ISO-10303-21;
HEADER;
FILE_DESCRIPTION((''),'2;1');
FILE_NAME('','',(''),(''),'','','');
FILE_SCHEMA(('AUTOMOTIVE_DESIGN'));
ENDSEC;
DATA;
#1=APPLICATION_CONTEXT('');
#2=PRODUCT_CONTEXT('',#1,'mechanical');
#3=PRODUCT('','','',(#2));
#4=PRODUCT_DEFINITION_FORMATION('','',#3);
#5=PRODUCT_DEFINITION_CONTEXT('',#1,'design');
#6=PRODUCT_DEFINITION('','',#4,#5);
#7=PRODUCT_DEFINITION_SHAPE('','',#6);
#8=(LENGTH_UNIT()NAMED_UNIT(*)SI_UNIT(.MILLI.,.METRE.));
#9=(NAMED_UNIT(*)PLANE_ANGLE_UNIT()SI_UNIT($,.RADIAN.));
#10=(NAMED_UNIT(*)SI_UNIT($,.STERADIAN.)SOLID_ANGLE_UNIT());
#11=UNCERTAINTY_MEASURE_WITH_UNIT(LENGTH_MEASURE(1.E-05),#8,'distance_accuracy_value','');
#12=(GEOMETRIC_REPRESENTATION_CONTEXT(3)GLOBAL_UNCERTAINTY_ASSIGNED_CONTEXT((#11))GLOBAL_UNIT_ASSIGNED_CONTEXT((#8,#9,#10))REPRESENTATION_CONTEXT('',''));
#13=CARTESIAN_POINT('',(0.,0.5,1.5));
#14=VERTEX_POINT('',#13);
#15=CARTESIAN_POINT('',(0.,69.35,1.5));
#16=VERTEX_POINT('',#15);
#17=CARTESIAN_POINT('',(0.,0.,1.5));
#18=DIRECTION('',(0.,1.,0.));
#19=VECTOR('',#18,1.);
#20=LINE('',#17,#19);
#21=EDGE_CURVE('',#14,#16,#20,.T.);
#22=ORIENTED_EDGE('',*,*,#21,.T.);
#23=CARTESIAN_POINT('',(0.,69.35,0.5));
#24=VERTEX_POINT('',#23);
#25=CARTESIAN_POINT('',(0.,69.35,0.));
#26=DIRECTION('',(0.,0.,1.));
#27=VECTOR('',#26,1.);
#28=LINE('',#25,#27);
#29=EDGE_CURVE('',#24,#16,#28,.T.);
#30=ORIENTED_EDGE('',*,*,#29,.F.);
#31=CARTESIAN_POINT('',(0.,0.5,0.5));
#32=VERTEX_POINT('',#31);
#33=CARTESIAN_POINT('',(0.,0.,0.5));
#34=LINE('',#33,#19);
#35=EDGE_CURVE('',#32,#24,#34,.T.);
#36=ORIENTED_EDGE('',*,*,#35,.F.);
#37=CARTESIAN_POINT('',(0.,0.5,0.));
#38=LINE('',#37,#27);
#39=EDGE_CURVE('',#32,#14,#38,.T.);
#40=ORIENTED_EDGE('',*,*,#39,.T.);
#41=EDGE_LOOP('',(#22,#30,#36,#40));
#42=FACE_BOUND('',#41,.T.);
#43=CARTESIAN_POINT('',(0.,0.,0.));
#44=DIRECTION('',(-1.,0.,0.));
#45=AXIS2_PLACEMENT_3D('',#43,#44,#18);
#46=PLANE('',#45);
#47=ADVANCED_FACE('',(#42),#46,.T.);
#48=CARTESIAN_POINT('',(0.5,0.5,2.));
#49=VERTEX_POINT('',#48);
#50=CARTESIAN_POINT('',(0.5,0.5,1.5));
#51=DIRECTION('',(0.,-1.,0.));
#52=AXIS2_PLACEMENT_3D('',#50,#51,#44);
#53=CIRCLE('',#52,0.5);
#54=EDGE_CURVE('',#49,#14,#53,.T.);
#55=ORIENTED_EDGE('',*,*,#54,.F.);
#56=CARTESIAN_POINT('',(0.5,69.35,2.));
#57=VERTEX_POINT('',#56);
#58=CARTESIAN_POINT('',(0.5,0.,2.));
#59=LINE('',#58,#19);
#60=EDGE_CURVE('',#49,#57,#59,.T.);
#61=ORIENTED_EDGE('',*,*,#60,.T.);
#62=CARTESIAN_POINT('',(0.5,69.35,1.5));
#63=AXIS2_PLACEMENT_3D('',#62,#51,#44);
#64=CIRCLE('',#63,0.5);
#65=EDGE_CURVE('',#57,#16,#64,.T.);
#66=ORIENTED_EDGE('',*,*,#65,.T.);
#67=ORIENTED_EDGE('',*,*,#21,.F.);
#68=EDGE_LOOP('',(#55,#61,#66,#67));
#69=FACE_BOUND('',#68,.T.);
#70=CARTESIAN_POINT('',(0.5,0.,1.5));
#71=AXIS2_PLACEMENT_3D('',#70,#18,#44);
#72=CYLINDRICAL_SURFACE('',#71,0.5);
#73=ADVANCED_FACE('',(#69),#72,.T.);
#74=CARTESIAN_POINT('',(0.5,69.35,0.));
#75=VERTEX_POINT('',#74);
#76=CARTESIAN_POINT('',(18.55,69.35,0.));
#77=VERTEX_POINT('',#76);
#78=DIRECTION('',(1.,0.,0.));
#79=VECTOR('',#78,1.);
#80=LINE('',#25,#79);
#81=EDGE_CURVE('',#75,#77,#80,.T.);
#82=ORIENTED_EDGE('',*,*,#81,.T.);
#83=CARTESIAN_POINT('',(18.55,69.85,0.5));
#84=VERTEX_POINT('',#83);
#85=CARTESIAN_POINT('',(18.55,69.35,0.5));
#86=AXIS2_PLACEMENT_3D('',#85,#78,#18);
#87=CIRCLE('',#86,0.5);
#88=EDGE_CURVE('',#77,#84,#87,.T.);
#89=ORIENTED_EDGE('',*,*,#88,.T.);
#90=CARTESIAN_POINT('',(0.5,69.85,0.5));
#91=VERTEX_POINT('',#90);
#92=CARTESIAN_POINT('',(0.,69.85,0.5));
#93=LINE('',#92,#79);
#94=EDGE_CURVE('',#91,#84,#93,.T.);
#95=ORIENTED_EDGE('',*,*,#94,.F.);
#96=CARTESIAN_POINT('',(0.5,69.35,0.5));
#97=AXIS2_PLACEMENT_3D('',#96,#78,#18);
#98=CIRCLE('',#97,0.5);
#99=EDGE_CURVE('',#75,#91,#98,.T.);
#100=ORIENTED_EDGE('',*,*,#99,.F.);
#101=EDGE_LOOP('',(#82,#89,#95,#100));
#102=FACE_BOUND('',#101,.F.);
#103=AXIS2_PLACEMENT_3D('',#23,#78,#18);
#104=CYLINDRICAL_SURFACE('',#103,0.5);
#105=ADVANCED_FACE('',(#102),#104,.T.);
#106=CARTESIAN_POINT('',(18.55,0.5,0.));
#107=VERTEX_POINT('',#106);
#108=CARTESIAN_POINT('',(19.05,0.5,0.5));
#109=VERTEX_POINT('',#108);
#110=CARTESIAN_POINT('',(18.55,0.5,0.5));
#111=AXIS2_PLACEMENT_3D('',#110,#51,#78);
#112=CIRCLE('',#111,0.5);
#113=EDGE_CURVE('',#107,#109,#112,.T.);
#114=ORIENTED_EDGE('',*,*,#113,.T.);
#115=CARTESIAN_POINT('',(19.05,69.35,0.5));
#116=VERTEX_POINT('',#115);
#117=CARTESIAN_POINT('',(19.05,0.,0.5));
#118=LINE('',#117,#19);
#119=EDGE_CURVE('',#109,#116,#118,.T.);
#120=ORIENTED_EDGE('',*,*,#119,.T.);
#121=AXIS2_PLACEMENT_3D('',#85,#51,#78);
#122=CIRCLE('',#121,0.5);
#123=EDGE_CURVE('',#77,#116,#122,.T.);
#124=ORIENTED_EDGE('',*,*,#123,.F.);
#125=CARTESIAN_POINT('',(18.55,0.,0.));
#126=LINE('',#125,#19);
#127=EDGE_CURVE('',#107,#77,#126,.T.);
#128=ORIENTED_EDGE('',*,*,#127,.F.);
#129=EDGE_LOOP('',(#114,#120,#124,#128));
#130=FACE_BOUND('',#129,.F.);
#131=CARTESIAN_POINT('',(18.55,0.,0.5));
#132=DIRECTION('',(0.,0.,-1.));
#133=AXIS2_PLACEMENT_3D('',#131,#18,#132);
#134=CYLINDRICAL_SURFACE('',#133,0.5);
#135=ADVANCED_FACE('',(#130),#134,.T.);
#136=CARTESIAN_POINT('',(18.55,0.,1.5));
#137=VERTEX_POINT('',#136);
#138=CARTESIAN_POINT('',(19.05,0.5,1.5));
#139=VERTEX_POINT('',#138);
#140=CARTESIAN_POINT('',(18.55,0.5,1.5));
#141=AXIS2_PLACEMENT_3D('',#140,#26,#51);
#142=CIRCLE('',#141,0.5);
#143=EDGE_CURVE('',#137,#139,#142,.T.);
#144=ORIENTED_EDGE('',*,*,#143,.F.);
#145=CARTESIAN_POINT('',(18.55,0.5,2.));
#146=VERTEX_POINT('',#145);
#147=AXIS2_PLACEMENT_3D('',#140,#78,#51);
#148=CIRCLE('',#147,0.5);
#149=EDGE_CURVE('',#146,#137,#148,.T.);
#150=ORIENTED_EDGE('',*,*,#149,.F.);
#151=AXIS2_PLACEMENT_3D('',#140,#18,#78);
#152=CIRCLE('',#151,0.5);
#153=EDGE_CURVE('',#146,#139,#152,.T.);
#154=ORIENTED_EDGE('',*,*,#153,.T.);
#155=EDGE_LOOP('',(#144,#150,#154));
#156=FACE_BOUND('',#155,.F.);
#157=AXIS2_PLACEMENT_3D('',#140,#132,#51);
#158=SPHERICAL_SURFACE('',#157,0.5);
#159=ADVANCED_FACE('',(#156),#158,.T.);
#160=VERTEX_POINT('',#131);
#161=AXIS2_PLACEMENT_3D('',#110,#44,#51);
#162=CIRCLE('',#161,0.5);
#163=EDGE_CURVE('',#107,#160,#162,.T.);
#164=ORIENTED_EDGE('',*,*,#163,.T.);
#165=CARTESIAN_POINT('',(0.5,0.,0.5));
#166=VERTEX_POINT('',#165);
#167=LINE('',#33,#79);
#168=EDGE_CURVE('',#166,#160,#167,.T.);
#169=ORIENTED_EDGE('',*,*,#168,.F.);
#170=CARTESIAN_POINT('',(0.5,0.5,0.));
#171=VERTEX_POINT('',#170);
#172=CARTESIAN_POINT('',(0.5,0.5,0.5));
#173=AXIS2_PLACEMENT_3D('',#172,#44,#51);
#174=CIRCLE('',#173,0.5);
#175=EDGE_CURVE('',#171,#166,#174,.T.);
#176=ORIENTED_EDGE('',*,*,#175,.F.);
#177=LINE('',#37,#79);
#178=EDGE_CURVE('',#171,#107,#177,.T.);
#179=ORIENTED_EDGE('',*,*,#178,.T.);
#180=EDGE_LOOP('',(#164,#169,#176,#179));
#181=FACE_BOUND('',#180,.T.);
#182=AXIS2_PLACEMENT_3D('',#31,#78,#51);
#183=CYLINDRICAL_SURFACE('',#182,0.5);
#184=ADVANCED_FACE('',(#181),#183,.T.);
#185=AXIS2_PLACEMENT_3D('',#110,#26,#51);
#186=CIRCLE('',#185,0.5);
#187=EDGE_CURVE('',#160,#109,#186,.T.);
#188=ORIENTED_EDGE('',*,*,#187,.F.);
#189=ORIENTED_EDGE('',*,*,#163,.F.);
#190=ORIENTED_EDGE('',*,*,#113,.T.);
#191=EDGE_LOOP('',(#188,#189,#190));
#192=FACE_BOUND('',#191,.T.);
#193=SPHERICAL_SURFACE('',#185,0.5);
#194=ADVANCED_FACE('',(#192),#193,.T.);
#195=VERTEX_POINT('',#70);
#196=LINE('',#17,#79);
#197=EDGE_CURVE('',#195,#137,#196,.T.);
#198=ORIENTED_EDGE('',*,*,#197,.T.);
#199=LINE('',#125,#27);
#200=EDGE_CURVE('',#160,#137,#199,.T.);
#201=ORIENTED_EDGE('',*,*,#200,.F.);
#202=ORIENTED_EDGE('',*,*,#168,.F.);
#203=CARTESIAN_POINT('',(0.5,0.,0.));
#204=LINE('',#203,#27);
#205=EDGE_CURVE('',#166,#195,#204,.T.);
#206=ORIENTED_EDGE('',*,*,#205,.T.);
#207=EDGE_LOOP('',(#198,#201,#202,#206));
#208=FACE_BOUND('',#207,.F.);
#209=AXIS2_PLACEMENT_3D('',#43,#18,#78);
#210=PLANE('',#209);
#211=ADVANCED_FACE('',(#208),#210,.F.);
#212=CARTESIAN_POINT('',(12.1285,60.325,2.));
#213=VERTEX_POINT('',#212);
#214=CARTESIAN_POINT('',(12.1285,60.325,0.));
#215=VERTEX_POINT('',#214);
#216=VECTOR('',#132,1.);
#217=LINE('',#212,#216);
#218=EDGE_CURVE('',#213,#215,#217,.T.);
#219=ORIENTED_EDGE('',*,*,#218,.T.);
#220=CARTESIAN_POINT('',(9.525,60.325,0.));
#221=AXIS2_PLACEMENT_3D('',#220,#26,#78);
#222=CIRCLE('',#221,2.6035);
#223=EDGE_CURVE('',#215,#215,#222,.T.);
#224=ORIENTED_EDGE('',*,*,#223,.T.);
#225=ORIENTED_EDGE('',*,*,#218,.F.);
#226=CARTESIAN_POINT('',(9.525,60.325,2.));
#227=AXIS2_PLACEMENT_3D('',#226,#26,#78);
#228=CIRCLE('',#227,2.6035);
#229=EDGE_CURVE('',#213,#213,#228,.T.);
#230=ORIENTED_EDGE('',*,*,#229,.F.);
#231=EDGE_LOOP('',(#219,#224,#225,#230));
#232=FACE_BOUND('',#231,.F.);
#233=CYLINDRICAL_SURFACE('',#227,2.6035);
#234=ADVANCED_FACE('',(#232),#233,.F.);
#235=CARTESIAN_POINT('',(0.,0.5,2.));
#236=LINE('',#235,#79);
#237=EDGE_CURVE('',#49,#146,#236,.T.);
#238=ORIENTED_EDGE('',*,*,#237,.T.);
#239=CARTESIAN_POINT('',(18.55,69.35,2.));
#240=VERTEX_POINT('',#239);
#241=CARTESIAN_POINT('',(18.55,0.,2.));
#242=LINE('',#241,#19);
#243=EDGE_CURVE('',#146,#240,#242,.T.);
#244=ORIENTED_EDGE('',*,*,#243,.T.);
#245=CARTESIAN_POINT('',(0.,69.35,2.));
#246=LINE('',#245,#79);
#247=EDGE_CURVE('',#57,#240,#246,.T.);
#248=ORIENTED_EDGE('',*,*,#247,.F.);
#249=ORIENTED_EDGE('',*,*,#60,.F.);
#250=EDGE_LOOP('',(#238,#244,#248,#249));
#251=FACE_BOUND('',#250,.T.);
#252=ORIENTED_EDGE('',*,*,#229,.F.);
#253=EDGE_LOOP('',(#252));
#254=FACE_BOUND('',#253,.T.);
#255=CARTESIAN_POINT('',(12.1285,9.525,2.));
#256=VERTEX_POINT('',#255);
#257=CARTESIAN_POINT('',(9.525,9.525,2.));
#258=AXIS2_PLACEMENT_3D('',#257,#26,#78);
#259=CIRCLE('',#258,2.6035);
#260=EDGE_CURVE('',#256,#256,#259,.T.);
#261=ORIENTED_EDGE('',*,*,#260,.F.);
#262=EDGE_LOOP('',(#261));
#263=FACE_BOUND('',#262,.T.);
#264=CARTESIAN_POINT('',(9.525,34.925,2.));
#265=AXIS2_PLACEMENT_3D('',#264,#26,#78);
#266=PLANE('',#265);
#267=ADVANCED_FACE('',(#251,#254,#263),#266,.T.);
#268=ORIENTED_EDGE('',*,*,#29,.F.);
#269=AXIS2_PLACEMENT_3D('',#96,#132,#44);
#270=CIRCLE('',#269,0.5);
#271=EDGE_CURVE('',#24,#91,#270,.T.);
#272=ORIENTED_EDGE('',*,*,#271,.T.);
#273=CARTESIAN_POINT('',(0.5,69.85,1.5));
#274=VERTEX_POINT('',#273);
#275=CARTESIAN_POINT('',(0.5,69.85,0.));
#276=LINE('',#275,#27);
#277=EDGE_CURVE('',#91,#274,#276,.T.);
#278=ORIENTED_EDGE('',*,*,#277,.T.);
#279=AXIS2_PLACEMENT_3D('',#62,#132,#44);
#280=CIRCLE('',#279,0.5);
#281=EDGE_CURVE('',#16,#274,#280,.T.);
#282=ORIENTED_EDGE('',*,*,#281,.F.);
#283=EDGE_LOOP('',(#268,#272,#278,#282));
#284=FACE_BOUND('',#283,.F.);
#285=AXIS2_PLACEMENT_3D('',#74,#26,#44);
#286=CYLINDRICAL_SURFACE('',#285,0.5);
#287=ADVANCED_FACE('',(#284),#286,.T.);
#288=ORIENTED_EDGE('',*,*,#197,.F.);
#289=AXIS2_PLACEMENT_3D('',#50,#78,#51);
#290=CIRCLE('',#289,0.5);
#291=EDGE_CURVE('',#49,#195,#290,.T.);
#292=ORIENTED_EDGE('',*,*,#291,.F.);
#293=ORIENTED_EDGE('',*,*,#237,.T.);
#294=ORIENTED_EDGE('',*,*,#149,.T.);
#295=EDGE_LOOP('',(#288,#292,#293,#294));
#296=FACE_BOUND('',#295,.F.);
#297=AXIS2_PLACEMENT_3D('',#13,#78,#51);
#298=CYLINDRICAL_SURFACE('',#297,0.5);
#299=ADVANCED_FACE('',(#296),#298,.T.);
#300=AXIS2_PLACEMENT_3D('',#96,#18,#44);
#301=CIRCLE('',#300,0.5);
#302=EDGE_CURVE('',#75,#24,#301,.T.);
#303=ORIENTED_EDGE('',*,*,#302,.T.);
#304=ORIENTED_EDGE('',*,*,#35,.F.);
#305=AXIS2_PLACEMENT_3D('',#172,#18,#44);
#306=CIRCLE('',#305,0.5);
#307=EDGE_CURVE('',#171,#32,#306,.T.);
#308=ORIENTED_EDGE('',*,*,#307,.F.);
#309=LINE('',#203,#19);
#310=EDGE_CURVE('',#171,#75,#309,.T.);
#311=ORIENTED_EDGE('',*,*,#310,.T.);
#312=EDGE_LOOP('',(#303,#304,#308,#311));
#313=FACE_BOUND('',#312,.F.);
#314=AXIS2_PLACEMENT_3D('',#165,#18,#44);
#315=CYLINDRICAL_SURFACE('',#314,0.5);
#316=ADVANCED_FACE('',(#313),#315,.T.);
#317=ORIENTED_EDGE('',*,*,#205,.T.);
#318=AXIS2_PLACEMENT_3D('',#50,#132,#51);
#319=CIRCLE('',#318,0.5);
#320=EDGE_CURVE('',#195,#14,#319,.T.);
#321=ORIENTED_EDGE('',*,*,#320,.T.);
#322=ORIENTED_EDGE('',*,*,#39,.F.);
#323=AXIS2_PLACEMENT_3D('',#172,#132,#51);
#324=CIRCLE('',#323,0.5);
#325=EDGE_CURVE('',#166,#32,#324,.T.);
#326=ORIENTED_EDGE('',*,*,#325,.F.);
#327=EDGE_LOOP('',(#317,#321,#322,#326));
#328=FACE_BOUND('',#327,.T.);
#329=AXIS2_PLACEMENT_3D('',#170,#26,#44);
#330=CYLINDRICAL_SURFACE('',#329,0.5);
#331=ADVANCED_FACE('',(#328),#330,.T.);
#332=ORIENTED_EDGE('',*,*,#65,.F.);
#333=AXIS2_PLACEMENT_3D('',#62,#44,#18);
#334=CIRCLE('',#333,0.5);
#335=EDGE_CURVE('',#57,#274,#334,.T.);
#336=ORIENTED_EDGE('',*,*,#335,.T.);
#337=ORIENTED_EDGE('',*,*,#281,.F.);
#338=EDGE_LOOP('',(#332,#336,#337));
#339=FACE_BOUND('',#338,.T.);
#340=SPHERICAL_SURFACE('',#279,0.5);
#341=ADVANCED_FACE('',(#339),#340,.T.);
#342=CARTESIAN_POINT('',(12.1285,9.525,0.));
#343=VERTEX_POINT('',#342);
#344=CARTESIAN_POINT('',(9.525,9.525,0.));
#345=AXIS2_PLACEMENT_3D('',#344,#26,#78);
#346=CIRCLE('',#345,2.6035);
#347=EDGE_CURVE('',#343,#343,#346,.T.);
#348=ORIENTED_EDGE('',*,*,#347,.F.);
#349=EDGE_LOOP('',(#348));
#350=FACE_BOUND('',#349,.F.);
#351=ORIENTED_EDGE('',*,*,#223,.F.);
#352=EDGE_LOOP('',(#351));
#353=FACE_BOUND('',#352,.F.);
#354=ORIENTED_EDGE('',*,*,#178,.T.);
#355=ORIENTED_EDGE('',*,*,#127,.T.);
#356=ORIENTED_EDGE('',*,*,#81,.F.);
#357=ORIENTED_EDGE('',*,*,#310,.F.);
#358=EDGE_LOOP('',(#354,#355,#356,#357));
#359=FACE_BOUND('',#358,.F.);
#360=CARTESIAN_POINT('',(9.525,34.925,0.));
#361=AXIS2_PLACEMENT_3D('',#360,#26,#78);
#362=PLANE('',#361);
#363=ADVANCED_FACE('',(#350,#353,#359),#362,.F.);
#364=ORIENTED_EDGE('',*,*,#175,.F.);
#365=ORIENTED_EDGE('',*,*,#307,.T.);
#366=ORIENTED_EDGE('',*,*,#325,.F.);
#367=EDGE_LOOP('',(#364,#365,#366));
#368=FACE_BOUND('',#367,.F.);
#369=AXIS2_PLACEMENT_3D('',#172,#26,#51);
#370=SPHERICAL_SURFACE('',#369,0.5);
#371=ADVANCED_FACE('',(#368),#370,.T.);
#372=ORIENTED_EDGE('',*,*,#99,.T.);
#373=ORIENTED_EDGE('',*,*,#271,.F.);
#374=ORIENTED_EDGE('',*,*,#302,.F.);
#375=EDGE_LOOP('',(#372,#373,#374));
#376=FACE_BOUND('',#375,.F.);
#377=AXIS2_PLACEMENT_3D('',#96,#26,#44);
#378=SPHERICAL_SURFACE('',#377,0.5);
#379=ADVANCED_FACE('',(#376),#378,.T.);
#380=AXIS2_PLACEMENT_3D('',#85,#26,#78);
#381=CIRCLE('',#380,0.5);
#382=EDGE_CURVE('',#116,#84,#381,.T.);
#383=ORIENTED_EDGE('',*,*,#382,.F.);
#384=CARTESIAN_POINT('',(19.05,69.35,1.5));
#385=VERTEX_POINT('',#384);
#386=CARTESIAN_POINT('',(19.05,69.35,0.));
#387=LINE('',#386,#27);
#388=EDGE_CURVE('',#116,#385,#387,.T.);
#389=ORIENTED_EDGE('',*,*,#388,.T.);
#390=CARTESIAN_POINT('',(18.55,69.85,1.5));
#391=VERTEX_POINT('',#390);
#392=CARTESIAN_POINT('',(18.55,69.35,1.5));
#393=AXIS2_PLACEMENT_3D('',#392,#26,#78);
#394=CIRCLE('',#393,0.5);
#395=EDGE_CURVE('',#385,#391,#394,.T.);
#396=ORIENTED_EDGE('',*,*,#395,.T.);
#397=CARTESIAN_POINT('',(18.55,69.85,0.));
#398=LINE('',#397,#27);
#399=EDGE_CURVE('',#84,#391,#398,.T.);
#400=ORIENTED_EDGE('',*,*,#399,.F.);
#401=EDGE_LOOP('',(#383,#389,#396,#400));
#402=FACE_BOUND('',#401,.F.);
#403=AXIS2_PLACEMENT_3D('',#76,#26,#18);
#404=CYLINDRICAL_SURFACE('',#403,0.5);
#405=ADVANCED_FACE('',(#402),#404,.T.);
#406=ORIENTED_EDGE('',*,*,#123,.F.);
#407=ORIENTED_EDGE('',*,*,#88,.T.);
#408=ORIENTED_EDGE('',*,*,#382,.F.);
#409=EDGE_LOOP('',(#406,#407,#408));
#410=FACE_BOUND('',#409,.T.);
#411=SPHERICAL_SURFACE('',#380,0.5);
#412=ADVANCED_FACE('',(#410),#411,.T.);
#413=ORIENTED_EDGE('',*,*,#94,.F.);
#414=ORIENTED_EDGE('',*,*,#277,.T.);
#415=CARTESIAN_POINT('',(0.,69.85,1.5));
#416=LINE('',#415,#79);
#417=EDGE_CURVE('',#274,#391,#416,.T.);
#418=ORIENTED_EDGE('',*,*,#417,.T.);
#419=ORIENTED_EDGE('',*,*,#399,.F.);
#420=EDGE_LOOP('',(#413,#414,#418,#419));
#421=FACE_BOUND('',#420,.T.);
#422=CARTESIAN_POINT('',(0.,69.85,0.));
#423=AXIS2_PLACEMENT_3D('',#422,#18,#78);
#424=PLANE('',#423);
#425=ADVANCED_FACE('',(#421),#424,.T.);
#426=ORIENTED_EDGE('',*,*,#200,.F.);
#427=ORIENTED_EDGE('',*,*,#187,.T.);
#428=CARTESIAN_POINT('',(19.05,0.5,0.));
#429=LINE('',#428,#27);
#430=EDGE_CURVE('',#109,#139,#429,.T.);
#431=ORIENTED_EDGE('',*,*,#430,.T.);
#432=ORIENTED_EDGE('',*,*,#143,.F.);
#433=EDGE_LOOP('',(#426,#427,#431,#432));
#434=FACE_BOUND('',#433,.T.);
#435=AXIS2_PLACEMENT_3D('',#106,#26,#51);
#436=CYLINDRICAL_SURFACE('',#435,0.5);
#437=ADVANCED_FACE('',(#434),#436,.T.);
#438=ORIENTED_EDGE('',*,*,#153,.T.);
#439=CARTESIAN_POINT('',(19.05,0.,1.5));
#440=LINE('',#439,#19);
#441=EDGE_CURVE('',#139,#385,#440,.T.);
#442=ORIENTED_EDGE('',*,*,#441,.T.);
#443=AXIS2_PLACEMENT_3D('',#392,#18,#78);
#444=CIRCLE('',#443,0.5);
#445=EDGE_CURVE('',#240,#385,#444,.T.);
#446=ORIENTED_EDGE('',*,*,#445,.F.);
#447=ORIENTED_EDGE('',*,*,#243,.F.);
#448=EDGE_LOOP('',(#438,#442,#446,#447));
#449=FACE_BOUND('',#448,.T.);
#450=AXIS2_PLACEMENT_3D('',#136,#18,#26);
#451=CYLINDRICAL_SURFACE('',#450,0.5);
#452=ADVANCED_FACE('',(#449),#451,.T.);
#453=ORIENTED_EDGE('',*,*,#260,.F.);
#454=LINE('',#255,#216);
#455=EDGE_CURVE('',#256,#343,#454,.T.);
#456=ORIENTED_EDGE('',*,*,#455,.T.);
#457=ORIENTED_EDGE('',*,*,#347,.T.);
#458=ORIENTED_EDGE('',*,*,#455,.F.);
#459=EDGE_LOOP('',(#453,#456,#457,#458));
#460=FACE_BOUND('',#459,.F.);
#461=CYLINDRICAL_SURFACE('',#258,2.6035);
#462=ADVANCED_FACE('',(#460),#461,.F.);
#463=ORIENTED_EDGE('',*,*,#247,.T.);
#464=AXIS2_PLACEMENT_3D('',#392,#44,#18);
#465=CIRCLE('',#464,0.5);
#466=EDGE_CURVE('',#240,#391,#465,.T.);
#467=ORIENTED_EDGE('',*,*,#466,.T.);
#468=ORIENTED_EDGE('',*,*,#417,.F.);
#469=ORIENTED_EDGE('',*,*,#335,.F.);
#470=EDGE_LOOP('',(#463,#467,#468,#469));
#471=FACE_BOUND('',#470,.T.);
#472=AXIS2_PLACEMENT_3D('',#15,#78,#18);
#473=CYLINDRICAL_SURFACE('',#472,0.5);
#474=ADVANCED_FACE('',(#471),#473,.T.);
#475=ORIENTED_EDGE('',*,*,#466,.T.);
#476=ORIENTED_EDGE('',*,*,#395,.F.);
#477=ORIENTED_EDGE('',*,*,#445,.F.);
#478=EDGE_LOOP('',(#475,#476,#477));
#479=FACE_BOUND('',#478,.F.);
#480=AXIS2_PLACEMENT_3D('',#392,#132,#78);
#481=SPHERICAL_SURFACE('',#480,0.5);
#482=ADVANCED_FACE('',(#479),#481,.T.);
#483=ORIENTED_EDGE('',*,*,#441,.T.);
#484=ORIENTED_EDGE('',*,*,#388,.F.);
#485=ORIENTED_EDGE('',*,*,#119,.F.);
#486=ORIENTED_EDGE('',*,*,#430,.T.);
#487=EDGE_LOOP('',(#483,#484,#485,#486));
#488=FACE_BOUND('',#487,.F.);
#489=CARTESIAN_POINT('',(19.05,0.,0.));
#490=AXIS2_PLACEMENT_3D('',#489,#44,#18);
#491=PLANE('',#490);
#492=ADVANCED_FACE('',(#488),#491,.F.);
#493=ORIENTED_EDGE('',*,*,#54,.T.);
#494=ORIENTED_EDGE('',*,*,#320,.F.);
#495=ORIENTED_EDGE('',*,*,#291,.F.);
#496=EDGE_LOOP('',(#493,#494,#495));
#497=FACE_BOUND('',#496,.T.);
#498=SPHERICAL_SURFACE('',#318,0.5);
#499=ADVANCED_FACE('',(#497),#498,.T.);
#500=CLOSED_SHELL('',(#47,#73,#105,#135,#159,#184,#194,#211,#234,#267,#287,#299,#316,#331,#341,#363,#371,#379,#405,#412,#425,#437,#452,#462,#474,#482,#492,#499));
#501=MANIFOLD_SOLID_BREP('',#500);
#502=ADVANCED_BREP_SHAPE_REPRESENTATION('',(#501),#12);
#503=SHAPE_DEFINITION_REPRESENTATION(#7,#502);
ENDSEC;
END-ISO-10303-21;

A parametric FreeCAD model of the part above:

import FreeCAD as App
import Part
import Sketcher

V = App.Vector
Q = App.Units.Quantity


def edges_at(feature, points):
    """Names of the edges that pass closest to the given points."""
    edges = feature.Shape.Edges
    near = lambda p: min(range(len(edges)), key=lambda i: edges[i].distToShape(Part.Vertex(*p))[0])
    return sorted({f"Edge{near(p) + 1}" for p in points})

doc = App.newDocument("Part")
body = doc.addObject("PartDesign::Body", "Body")

# Sketch on XY plane
sketch1 = body.newObject("Sketcher::SketchObject", "Sketch")
sketch1.AttachmentSupport = (doc.getObject("XY_Plane"), [""])
sketch1.MapMode = "FlatFace"
sketch1.addGeometry([
    Part.LineSegment(V(0, 69.85, 0), V(0, 0, 0)),
    Part.LineSegment(V(0, 0, 0), V(19.05, 0, 0)),
    Part.LineSegment(V(19.05, 0, 0), V(19.05, 69.85, 0)),
    Part.LineSegment(V(19.05, 69.85, 0), V(0, 69.85, 0)),
], False)
sketch1.addConstraint([
    Sketcher.Constraint("Coincident", 0, 2, 1, 1),
    Sketcher.Constraint("Coincident", 1, 2, 2, 1),
    Sketcher.Constraint("Coincident", 2, 2, 3, 1),
    Sketcher.Constraint("Coincident", 3, 2, 0, 1),
    Sketcher.Constraint("Vertical", 0),
    Sketcher.Constraint("Horizontal", 1),
    Sketcher.Constraint("Vertical", 2),
    Sketcher.Constraint("Horizontal", 3),
    Sketcher.Constraint("Coincident", 0, 2, -1, 1),
    Sketcher.Constraint("DistanceX", 1, 1, 1, 2, Q("0.75 in")),
    Sketcher.Constraint("DistanceY", 0, 2, 0, 1, Q("2.75 in")),
])
pad1 = body.newObject("PartDesign::Pad", "Pad")
pad1.Profile = sketch1
pad1.Length = 2

# Sketch on XY plane
sketch2 = body.newObject("Sketcher::SketchObject", "Sketch001")
sketch2.AttachmentSupport = (doc.getObject("XY_Plane"), [""])
sketch2.MapMode = "FlatFace"
sketch2.AttachmentOffset = App.Placement(V(0, 0, 2), App.Rotation())
sketch2.addGeometry(Part.Circle(V(9.525, 9.525, 0), V(0, 0, 1), 2.6035), False)
sketch2.addConstraint([
    Sketcher.Constraint("Diameter", 0, Q("0.205 in")),
    Sketcher.Constraint("DistanceX", -1, 1, 0, 3, Q("0.375 in")),
    Sketcher.Constraint("DistanceY", -1, 1, 0, 3, Q("0.375 in")),
])
pocket1 = body.newObject("PartDesign::Pocket", "Pocket")
pocket1.Profile = sketch2
pocket1.Type = "ThroughAll"
doc.recompute()

linearpattern = body.newObject("PartDesign::LinearPattern", "LinearPattern")
linearpattern.Originals = [pocket1]
linearpattern.Direction = (doc.getObject("Y_Axis"), [""])
linearpattern.Mode = "offset"
linearpattern.Offset = Q("2 in")
linearpattern.Occurrences = 2
body.Tip = linearpattern
doc.recompute()

fillet = body.newObject("PartDesign::Fillet", "Fillet")
fillet.Base = (linearpattern, edges_at(linearpattern, [
    (0, 0, 1),
    (19.05, 0, 1),
    (9.525, 0, 0),
    (9.525, 0, 2),
    (19.05, 69.85, 1),
    (19.05, 34.925, 0),
    (19.05, 34.925, 2),
    (0, 69.85, 1),
    (0, 34.925, 0),
    (0, 34.925, 2),
    (9.525, 69.85, 0),
    (9.525, 69.85, 2),
]))
fillet.Radius = 0.5

doc.recompute()
